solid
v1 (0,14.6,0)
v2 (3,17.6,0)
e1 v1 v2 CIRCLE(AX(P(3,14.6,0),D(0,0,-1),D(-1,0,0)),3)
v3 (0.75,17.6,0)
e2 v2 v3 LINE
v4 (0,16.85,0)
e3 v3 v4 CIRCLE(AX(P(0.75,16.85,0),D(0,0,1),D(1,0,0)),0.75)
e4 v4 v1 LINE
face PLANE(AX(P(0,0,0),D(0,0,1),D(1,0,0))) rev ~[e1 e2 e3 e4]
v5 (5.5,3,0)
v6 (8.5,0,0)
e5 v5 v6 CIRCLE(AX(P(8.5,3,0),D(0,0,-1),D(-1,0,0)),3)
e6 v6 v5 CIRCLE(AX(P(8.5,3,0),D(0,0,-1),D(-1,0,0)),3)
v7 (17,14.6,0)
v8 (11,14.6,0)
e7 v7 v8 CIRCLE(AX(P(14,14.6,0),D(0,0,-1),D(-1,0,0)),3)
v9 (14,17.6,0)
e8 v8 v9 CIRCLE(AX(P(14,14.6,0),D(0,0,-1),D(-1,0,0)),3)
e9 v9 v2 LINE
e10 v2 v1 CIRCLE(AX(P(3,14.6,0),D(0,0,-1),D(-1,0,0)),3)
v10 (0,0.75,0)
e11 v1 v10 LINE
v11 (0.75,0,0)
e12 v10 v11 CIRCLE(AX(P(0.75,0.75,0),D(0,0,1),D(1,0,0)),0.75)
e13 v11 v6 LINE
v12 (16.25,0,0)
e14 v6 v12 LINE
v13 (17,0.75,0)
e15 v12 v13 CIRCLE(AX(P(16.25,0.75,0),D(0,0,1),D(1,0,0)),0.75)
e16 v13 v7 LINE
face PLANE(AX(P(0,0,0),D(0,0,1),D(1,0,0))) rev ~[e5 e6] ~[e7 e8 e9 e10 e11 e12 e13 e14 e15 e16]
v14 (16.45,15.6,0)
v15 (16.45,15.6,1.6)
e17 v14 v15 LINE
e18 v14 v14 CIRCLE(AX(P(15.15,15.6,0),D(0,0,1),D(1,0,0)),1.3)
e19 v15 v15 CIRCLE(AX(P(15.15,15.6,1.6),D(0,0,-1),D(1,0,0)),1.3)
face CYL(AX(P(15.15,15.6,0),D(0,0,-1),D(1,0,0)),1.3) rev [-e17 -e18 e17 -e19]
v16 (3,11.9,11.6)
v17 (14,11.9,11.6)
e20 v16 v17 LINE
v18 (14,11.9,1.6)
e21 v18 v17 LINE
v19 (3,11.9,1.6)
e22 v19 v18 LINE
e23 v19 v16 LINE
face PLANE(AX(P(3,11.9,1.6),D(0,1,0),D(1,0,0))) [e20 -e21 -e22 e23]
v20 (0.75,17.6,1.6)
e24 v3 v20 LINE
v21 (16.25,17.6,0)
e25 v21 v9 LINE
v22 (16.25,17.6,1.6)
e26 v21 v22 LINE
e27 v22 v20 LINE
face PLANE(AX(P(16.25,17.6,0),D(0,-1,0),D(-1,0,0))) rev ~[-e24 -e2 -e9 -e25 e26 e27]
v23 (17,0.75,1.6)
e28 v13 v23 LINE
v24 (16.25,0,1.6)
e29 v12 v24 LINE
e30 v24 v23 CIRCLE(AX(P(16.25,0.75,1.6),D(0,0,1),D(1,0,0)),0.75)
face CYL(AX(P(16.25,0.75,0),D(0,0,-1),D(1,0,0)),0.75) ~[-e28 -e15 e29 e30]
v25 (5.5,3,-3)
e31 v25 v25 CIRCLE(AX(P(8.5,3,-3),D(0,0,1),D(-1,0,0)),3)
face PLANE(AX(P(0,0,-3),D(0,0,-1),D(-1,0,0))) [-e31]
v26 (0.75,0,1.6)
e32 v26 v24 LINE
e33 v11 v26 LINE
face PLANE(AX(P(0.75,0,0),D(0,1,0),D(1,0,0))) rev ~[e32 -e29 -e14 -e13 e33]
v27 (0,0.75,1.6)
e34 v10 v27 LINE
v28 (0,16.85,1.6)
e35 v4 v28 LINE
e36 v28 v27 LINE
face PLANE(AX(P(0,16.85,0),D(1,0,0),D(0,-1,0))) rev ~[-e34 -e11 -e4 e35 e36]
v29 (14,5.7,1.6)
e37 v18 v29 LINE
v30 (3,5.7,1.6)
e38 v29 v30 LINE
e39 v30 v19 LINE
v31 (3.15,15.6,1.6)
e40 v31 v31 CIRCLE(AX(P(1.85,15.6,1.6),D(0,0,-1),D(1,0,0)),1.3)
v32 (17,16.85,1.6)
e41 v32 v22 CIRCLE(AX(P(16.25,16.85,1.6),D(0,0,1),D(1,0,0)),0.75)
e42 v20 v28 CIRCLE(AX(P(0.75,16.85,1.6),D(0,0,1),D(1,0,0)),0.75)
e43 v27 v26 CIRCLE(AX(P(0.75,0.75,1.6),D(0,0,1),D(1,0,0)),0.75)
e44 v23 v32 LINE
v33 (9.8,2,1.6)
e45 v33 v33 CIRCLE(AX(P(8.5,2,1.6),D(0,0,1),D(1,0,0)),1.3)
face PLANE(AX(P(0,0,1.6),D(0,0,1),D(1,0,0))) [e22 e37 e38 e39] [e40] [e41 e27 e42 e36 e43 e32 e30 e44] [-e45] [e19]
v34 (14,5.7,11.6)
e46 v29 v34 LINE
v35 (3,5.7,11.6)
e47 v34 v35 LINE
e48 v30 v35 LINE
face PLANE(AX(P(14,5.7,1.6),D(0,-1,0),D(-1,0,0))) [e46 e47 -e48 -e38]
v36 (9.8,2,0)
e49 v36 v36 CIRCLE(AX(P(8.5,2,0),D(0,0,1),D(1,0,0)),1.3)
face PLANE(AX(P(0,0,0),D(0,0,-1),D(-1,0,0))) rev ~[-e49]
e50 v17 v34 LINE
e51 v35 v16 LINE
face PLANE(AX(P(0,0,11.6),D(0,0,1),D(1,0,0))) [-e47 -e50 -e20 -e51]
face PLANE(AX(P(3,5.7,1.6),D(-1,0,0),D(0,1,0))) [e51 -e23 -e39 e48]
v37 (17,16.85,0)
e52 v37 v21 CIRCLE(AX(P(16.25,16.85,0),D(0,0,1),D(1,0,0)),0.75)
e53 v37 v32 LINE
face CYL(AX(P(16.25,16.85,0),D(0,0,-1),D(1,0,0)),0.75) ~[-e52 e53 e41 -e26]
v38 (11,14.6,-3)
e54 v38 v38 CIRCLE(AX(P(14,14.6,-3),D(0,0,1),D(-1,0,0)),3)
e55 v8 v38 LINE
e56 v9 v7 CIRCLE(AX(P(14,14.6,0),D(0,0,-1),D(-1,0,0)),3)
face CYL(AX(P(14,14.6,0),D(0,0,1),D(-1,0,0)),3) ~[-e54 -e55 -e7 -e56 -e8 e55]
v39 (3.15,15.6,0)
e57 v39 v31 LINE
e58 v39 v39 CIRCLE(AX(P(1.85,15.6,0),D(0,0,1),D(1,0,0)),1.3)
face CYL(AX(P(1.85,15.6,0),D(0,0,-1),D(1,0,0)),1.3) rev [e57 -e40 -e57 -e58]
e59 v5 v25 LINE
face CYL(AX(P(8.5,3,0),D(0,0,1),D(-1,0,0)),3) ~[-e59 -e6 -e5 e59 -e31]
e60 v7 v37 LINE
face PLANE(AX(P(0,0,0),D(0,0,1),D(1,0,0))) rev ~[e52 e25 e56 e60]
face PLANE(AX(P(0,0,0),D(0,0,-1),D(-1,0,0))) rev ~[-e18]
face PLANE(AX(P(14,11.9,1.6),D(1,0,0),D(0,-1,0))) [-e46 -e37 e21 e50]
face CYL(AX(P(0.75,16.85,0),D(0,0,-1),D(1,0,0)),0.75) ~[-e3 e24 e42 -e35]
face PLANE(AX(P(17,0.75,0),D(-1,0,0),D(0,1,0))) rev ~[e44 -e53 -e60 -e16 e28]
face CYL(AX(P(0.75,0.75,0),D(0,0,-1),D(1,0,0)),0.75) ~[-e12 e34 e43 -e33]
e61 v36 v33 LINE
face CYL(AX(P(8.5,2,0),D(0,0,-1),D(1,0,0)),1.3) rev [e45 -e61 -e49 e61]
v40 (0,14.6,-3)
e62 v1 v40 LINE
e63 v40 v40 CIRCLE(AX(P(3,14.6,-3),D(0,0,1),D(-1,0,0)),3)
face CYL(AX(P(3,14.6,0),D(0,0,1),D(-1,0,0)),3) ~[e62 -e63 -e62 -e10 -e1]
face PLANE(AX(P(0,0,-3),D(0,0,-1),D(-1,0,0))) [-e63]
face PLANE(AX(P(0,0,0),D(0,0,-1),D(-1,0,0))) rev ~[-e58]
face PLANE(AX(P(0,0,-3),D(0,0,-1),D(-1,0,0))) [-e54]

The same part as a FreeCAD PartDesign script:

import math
import FreeCAD as App
import Part
import Sketcher

V = App.Vector
Q = App.Units.Quantity


def add_polygon(sketch, points):
    """Adds a closed chain of lines whose ends are joined by coincident constraints."""
    first, n = sketch.GeometryCount, len(points)
    for a, b in zip(points, points[1:] + points[:1]):
        sketch.addGeometry(Part.LineSegment(App.Vector(*a, 0), App.Vector(*b, 0)), False)
    for i in range(n):
        sketch.addConstraint(Sketcher.Constraint("Coincident", first + i, 2, first + (i + 1) % n, 1))

doc = App.newDocument("Part")
body = doc.addObject("PartDesign::Body", "Body")

# Sketch on XY plane
sketch1 = body.newObject("Sketcher::SketchObject", "Sketch")
sketch1.AttachmentSupport = (doc.getObject("XY_Plane"), [""])
sketch1.MapMode = "FlatFace"
sketch1.addGeometry([
    Part.LineSegment(V(0, 16.9, 0), V(0, 0.8, 0)),  # 0
    Part.ArcOfCircle(Part.Circle(V(0.8, 0.8, 0), V(0, 0, 1), 0.8), math.radians(180), math.radians(270)),  # 1
    Part.LineSegment(V(0.8, 0, 0), V(16.2, 0, 0)),  # 2
    Part.ArcOfCircle(Part.Circle(V(16.2, 0.8, 0), V(0, 0, 1), 0.8), math.radians(-90), math.radians(0)),  # 3
    Part.LineSegment(V(17, 0.8, 0), V(17, 16.9, 0)),  # 4
    Part.ArcOfCircle(Part.Circle(V(16.2, 16.9, 0), V(0, 0, 1), 0.8), math.radians(0), math.radians(90)),  # 5
    Part.LineSegment(V(16.2, 17.6, 0), V(0.8, 17.6, 0)),  # 6
    Part.ArcOfCircle(Part.Circle(V(0.8, 16.9, 0), V(0, 0, 1), 0.8), math.radians(90), math.radians(180)),  # 7
    Part.Circle(V(1.9, 15.6, 0), V(0, 0, 1), 1.3),  # 8
    Part.Circle(V(15.2, 15.6, 0), V(0, 0, 1), 1.3),  # 9
    Part.Circle(V(8.5, 2, 0), V(0, 0, 1), 1.3),  # 10
], False)
sketch1.addConstraint([
    Sketcher.Constraint("Tangent", 0, 2, 1, 1),
    Sketcher.Constraint("Tangent", 1, 2, 2, 1),
    Sketcher.Constraint("Tangent", 2, 2, 3, 1),
    Sketcher.Constraint("Tangent", 3, 2, 4, 1),
    Sketcher.Constraint("Tangent", 4, 2, 5, 1),
    Sketcher.Constraint("Tangent", 5, 2, 6, 1),
    Sketcher.Constraint("Tangent", 6, 2, 7, 1),
    Sketcher.Constraint("Tangent", 7, 2, 0, 1),
    Sketcher.Constraint("Vertical", 0),
    Sketcher.Constraint("Horizontal", 2),
    Sketcher.Constraint("Vertical", 4),
    Sketcher.Constraint("Horizontal", 6),
    Sketcher.Constraint("Equal", 1, 3),
    Sketcher.Constraint("Equal", 3, 5),
    Sketcher.Constraint("Equal", 5, 7),
    Sketcher.Constraint("Equal", 8, 9),
    Sketcher.Constraint("Equal", 9, 10),
    Sketcher.Constraint("PointOnObject", 0, 2, -2),
    Sketcher.Constraint("PointOnObject", 1, 2, -1),
    Sketcher.Constraint("Horizontal", 8, 3, 9, 3),
    Sketcher.Constraint("Diameter", 8, Q("2.6 mm")),
    Sketcher.Constraint("Radius", 1, Q("0.75 mm")),
    Sketcher.Constraint("DistanceY", -1, 1, 10, 3, Q("2 mm")),
    Sketcher.Constraint("DistanceX", -1, 1, 3, 2, Q("17 mm")),
    Sketcher.Constraint("DistanceY", 9, 3, 5, 2, Q("2 mm")),
    Sketcher.Constraint("DistanceX", -1, 1, 10, 3, Q("8.5 mm")),
    Sketcher.Constraint("DistanceY", -1, 1, 5, 2, Q("17.6 mm")),
    Sketcher.Constraint("DistanceX", -1, 1, 8, 3, Q("1.85 mm")),
    Sketcher.Constraint("DistanceX", 9, 3, 3, 2, Q("1.85 mm")),
])
pad1 = body.newObject("PartDesign::Pad", "Pad")
pad1.Profile = sketch1
pad1.Length = 1.6

# Sketch on XY plane
sketch2 = body.newObject("Sketcher::SketchObject", "Sketch001")
sketch2.AttachmentSupport = (doc.getObject("XY_Plane"), [""])
sketch2.MapMode = "FlatFace"
sketch2.AttachmentOffset = App.Placement(V(0, 0, 1.6), App.Rotation())
add_polygon(sketch2, [(14, 12), (3, 12), (3, 6), (14, 6)])  # lines 0-3
sketch2.addConstraint([
    Sketcher.Constraint("Horizontal", 0),
    Sketcher.Constraint("Vertical", 1),
    Sketcher.Constraint("Horizontal", 2),
    Sketcher.Constraint("Vertical", 3),
    Sketcher.Constraint("DistanceX", 0, 2, 0, 1, Q("11 mm")),
    Sketcher.Constraint("DistanceY", 1, 2, 1, 1, Q("6.2 mm")),
    Sketcher.Constraint("DistanceX", -1, 1, 0, 2, Q("3 mm")),
    Sketcher.Constraint("DistanceY", -1, 1, 0, 2, Q("11.9 mm")),
])
pad2 = body.newObject("PartDesign::Pad", "Pad001")
pad2.Profile = sketch2
pad2.Length = 10

# Sketch on XY plane
sketch3 = body.newObject("Sketcher::SketchObject", "Sketch002")
sketch3.AttachmentSupport = (doc.getObject("XY_Plane"), [""])
sketch3.MapMode = "FlatFace"
sketch3.addGeometry([
    Part.Circle(V(14, 14.6, 0), V(0, 0, 1), 3),
    Part.Circle(V(3, 14.6, 0), V(0, 0, 1), 3),
    Part.Circle(V(8.5, 3, 0), V(0, 0, 1), 3),
], False)
sketch3.addConstraint([
    Sketcher.Constraint("Equal", 0, 1),
    Sketcher.Constraint("Equal", 1, 2),
    Sketcher.Constraint("Horizontal", 0, 3, 1, 3),
    Sketcher.Constraint("Diameter", 0, Q("6 mm")),
    Sketcher.Constraint("DistanceX", -1, 1, 0, 3, Q("14 mm")),
    Sketcher.Constraint("DistanceX", -1, 1, 1, 3, Q("3 mm")),
    Sketcher.Constraint("DistanceY", -1, 1, 2, 3, Q("3 mm")),
    Sketcher.Constraint("DistanceY", -1, 1, 0, 3, Q("14.6 mm")),
    Sketcher.Constraint("DistanceX", -1, 1, 2, 3, Q("8.5 mm")),
])
pad3 = body.newObject("PartDesign::Pad", "Pad002")
pad3.Profile = sketch3
pad3.Length = 3
pad3.Reversed = True

doc.recompute()
